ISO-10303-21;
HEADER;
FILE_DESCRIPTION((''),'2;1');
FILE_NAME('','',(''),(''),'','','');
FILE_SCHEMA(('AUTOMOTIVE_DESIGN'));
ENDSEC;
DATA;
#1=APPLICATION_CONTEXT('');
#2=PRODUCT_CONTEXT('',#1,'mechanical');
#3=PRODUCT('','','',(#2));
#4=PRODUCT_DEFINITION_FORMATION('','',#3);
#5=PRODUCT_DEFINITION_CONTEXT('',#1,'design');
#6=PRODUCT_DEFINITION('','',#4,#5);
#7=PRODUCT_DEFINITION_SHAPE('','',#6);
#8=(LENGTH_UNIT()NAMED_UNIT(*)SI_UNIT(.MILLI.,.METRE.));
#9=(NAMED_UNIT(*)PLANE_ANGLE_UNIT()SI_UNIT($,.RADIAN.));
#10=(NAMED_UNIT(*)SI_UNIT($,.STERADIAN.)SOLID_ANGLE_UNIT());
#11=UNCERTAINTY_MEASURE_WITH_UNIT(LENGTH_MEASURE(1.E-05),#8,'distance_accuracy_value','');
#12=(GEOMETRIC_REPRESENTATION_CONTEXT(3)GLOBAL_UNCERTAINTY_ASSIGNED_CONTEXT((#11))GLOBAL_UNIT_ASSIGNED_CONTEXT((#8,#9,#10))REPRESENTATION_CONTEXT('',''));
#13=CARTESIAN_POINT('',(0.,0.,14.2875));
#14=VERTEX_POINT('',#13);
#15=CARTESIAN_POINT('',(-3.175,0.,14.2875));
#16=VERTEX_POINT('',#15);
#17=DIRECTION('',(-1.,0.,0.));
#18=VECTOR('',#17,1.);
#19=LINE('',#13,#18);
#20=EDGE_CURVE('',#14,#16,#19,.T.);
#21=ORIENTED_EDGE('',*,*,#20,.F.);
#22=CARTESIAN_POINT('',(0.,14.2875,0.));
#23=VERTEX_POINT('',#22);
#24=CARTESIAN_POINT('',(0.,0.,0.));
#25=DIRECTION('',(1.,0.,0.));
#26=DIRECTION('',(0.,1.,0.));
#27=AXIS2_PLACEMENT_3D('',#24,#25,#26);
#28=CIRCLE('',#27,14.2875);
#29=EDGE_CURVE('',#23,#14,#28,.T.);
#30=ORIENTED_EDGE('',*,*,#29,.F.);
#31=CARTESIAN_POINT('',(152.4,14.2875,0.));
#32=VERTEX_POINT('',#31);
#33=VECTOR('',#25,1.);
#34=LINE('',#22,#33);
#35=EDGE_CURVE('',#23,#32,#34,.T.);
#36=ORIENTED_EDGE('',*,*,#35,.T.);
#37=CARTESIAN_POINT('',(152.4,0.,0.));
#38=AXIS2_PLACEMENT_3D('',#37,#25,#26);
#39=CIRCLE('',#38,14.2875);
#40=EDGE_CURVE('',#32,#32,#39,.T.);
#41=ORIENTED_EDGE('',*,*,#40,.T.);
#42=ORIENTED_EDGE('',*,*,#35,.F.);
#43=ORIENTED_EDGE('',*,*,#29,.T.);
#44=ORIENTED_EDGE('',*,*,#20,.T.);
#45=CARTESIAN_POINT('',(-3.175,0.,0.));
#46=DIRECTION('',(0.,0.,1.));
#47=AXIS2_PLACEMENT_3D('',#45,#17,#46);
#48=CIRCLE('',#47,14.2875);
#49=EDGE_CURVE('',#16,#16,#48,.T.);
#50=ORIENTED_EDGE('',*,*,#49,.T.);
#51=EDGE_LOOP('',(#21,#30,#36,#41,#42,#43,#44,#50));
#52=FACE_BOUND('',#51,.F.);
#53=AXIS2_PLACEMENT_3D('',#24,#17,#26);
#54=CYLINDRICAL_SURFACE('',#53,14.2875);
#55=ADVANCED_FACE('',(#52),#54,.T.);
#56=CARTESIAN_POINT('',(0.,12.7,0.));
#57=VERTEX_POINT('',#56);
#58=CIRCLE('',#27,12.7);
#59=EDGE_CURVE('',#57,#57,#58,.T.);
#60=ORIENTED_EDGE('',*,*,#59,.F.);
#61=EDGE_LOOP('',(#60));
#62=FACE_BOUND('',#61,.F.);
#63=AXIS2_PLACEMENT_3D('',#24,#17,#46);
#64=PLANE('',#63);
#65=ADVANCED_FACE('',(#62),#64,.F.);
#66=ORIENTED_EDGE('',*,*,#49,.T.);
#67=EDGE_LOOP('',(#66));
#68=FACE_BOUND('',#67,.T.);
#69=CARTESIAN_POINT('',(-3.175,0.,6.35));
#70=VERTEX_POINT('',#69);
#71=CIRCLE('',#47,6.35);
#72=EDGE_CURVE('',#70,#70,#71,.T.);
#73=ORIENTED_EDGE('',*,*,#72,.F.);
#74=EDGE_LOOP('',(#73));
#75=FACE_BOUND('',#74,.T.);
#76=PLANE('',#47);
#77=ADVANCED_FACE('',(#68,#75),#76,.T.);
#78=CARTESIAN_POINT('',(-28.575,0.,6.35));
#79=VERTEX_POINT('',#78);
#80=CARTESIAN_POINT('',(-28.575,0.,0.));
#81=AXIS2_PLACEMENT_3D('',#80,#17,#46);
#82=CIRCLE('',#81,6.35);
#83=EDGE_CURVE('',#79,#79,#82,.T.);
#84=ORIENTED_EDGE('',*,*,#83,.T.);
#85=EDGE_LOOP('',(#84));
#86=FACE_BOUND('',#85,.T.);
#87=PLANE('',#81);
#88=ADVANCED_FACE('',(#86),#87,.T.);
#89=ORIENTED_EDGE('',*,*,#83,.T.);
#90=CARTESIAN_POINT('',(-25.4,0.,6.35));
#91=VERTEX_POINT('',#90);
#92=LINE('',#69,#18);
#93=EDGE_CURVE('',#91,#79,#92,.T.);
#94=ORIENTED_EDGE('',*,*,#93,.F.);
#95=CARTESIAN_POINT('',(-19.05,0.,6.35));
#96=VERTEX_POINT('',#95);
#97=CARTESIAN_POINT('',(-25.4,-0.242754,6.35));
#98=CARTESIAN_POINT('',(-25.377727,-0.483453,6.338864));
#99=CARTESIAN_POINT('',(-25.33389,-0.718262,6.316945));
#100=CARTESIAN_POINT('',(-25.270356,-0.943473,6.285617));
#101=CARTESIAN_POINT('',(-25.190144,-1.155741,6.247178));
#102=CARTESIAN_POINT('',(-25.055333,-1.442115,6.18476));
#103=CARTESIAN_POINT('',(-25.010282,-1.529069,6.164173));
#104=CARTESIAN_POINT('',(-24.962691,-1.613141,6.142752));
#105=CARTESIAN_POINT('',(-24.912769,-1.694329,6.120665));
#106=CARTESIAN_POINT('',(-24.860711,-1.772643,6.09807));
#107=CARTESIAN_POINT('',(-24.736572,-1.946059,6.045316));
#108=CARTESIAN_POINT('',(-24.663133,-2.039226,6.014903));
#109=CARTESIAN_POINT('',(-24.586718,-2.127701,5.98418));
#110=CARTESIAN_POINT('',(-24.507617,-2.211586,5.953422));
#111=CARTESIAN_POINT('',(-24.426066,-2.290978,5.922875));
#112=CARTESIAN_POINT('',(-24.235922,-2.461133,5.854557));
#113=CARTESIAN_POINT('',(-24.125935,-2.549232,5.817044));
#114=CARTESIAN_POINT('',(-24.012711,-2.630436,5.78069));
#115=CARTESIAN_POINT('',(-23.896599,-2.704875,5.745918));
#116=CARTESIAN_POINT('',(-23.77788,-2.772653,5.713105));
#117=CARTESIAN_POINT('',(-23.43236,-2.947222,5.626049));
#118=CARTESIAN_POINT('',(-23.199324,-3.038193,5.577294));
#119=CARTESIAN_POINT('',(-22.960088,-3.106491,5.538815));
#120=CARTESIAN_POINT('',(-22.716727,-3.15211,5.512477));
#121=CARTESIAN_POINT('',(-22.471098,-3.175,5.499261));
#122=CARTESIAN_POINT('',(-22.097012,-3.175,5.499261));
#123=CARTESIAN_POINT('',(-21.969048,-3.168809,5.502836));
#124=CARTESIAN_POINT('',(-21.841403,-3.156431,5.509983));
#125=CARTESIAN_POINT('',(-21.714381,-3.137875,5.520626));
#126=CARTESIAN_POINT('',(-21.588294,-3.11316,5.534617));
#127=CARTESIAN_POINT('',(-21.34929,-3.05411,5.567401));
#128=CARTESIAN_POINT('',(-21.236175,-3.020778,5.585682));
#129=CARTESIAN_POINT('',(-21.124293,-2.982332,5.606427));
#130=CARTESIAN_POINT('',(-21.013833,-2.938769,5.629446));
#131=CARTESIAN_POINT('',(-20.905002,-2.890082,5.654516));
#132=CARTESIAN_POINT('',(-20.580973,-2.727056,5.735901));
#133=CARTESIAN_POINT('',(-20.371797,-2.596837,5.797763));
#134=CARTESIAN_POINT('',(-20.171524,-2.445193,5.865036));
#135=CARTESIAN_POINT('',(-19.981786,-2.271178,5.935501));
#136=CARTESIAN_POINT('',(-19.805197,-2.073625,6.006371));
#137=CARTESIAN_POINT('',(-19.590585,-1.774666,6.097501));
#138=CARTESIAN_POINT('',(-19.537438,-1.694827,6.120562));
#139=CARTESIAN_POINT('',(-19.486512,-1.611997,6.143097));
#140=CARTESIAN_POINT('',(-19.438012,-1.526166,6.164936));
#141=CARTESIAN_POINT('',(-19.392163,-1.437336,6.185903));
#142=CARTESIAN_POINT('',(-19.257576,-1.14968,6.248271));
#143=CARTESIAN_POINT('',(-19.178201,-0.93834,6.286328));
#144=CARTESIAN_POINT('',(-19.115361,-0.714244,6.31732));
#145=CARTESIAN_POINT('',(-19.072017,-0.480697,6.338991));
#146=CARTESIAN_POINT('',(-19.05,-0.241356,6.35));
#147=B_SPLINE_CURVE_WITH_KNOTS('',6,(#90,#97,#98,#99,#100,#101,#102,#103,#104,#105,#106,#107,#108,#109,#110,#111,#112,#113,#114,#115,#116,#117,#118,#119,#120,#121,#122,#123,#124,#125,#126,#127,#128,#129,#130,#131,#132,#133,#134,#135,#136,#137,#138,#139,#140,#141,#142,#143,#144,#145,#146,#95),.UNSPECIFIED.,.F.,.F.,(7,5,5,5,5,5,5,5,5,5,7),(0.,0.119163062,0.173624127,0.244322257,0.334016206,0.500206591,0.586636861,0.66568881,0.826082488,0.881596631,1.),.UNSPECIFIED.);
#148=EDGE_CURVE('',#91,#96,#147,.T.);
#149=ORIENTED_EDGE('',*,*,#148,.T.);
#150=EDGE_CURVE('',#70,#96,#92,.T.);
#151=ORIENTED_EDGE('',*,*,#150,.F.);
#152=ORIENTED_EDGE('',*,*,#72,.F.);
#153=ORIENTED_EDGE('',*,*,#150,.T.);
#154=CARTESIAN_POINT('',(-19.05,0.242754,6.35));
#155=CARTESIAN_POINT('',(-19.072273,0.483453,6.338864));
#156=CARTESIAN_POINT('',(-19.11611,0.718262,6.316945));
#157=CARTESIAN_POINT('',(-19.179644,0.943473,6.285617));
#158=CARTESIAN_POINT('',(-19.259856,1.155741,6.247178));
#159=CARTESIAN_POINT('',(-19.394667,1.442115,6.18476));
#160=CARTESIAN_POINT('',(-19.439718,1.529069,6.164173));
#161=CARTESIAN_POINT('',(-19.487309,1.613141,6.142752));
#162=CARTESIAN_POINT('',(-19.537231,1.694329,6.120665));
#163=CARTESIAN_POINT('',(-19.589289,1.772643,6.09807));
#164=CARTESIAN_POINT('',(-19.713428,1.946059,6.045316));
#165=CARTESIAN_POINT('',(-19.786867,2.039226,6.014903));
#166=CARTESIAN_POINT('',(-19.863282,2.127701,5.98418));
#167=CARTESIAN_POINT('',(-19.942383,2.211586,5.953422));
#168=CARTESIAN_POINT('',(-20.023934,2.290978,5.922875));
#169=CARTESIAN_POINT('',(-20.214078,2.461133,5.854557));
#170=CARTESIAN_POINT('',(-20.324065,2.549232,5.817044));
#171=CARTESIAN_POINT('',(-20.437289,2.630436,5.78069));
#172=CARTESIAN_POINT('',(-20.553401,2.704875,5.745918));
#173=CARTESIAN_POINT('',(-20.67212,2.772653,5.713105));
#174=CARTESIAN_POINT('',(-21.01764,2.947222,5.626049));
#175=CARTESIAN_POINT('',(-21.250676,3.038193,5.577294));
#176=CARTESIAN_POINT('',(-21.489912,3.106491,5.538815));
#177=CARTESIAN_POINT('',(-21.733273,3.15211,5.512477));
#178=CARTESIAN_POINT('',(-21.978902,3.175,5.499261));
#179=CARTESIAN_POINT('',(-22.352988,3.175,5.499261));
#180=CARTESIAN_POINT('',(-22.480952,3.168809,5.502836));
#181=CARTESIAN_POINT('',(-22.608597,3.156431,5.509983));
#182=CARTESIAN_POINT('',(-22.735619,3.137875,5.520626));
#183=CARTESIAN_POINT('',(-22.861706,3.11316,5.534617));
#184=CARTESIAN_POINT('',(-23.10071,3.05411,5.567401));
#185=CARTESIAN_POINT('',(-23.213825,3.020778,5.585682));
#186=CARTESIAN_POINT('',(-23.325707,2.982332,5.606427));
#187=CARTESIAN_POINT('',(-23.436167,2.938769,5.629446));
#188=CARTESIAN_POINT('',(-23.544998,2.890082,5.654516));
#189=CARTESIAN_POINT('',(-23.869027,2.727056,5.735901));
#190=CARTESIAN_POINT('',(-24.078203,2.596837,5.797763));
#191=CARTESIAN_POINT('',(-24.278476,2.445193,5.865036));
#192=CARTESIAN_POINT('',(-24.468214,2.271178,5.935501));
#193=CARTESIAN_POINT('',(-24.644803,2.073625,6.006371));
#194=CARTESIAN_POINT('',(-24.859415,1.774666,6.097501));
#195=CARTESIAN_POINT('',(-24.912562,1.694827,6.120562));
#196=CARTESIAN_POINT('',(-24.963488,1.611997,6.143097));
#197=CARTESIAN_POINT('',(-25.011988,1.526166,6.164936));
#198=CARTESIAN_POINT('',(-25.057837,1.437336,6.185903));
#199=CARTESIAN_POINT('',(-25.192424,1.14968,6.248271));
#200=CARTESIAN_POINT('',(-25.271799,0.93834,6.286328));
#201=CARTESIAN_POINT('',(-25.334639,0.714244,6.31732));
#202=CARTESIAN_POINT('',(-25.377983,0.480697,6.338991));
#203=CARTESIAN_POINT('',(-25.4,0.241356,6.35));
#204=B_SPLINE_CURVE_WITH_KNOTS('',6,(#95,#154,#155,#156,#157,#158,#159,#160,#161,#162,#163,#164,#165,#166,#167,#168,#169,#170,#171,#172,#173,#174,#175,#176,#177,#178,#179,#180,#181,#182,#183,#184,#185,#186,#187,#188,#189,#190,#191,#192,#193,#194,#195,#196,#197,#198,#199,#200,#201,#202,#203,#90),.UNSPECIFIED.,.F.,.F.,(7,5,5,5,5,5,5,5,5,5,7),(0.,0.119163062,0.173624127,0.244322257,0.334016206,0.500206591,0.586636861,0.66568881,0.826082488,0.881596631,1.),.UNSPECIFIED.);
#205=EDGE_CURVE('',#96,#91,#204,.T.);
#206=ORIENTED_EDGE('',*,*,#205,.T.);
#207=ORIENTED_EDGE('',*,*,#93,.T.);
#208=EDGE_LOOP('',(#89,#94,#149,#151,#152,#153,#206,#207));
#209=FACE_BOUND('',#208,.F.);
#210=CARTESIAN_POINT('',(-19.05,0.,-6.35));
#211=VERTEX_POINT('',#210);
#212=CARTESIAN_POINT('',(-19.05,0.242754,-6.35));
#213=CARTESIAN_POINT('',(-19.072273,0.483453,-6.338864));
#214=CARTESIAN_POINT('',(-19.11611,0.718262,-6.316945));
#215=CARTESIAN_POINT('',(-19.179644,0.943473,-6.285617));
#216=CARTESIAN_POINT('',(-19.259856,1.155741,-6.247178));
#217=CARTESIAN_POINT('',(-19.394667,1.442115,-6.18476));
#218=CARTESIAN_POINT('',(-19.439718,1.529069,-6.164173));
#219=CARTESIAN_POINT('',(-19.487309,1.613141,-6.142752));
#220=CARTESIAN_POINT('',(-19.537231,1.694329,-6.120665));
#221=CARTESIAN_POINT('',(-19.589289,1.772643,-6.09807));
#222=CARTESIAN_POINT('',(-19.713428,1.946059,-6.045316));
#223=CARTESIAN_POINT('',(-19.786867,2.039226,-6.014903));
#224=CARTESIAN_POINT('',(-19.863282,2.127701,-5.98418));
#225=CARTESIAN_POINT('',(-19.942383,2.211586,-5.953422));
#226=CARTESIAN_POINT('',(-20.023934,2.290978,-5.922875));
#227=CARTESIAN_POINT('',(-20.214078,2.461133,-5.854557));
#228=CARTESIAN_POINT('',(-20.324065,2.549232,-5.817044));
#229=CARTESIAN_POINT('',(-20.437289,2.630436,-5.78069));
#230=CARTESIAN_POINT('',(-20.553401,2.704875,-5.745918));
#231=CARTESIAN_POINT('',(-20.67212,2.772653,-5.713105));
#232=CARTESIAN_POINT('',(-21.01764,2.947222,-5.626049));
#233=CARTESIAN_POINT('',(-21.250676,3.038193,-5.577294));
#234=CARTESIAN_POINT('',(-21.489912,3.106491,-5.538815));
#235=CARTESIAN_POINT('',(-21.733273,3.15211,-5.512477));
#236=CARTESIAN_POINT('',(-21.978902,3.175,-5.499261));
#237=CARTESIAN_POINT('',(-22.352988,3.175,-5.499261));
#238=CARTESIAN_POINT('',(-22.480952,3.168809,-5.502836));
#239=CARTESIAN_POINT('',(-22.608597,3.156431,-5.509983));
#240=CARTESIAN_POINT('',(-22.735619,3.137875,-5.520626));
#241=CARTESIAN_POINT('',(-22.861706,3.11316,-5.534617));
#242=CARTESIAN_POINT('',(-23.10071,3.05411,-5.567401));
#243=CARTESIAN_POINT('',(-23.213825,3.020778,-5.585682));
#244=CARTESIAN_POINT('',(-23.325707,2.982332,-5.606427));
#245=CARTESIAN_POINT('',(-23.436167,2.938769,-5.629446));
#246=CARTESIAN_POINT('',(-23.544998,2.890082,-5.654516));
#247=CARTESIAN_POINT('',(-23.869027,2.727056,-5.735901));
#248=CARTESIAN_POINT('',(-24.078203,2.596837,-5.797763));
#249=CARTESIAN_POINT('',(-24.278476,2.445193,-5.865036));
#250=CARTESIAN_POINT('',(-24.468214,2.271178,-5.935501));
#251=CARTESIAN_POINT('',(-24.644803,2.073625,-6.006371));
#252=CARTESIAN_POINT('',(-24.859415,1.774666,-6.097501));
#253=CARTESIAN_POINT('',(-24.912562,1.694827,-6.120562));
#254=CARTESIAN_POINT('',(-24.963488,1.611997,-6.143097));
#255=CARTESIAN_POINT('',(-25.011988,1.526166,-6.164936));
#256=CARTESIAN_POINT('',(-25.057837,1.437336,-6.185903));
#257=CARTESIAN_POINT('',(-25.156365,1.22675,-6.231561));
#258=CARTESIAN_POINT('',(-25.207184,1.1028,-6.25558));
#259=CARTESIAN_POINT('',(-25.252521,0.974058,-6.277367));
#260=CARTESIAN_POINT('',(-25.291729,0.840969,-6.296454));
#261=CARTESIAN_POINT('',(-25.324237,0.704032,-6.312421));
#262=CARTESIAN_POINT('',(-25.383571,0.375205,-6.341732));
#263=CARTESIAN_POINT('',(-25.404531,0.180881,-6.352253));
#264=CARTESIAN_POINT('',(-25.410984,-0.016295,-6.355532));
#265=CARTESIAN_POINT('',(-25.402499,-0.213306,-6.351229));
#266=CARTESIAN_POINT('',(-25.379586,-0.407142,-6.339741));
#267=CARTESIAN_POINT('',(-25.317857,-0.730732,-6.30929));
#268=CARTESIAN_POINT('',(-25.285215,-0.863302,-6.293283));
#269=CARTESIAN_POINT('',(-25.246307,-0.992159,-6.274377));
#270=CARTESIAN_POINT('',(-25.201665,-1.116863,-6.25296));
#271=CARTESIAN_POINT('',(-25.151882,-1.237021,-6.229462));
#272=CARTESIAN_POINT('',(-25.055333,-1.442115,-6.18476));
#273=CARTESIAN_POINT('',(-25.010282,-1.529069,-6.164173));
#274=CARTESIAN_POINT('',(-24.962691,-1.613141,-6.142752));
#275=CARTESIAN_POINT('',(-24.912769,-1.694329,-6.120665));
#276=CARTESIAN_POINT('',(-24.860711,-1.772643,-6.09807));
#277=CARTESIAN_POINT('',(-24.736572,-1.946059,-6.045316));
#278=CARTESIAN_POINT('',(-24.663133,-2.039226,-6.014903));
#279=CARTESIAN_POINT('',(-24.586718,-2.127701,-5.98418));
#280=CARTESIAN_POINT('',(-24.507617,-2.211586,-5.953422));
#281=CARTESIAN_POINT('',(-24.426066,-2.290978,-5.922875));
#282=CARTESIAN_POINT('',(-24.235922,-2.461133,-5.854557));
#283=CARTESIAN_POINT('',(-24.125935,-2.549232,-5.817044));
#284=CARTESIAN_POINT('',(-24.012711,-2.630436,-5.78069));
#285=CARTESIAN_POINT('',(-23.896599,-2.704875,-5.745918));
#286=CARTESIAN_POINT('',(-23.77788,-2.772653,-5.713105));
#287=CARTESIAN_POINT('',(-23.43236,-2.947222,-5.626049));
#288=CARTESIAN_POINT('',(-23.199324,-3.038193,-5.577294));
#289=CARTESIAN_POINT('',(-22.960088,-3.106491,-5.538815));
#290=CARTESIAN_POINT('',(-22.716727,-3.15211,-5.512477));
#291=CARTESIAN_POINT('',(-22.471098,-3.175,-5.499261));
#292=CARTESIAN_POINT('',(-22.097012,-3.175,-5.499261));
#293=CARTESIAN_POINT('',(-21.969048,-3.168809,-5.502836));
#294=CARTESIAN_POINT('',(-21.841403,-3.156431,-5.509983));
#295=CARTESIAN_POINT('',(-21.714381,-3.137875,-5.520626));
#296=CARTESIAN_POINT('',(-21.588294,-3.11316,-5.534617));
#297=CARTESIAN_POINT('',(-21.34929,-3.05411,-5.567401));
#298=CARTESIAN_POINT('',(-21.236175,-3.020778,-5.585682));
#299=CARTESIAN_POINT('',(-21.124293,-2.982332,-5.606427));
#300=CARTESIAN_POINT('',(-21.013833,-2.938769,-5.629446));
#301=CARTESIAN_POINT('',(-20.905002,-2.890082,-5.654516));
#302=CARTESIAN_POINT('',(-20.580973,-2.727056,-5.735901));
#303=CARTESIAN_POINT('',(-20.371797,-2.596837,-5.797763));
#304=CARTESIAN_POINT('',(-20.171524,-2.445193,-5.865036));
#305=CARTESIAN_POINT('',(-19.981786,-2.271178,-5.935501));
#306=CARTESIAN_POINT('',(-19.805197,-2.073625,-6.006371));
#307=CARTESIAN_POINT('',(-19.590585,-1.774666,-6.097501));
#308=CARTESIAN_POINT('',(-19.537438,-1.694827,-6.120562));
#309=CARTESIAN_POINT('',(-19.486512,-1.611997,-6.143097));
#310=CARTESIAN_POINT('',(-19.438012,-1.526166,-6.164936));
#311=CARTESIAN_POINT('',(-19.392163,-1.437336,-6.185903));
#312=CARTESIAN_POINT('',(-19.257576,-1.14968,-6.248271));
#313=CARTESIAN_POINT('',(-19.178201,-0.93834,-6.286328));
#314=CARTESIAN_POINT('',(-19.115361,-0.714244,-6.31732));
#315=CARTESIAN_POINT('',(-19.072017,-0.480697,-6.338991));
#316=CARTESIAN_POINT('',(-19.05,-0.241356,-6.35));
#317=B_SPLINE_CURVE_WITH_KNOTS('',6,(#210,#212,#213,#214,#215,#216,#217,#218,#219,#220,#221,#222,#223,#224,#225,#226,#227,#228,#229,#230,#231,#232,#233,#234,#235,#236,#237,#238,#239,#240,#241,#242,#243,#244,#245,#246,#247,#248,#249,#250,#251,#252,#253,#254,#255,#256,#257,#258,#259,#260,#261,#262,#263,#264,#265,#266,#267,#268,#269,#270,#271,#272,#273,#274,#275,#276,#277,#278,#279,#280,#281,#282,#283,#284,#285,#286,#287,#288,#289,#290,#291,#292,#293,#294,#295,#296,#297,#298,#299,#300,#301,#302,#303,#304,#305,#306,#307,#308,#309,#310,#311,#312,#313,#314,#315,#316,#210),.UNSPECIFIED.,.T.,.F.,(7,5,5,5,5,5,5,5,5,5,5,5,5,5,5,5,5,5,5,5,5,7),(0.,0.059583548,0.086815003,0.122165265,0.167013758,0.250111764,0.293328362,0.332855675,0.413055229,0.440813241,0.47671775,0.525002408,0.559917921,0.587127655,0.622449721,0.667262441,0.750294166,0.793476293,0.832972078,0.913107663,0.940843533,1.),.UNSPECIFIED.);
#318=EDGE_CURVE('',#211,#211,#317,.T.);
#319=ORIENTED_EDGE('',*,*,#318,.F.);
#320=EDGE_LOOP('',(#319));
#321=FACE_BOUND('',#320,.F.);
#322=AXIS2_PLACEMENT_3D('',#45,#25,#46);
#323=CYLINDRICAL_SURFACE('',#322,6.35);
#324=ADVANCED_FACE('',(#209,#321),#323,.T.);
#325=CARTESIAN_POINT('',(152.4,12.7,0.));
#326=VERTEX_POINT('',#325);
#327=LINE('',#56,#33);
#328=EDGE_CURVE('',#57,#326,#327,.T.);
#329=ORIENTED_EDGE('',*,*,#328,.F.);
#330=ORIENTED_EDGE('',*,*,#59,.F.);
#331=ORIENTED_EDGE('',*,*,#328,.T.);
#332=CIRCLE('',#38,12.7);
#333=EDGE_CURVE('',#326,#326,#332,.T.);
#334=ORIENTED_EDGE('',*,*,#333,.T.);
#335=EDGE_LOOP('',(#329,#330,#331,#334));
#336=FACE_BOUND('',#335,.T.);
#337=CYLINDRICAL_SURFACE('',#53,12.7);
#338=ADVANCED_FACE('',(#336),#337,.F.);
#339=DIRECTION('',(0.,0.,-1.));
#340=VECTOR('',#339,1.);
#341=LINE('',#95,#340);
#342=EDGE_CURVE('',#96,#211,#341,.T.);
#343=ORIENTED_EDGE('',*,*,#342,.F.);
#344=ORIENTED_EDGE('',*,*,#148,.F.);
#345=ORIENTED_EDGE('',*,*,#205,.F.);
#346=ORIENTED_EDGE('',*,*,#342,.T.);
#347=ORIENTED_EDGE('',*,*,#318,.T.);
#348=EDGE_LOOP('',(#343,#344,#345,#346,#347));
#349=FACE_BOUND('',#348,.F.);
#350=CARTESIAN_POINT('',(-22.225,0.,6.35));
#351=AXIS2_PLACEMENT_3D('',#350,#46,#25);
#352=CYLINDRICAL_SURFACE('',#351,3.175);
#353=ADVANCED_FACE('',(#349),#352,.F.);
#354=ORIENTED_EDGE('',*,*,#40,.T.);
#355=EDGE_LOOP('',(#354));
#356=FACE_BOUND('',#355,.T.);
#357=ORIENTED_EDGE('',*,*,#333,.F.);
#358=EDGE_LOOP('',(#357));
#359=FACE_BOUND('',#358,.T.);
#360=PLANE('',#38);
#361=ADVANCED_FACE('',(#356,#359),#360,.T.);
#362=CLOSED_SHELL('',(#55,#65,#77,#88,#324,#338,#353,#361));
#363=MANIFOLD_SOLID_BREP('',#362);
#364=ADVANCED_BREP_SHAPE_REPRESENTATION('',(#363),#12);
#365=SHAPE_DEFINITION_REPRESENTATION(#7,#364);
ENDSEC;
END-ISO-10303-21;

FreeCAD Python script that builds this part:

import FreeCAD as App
import Part
import Sketcher

V = App.Vector
Q = App.Units.Quantity

doc = App.newDocument("Part")
params = doc.addObject("Spreadsheet::Sheet", "Params")
for row, (alias, value) in enumerate([
    ("sketch1_diameter", "1 in"),
    ("sketch1_diameter2", "1.125 in"),
    ("pad1_length", "6 in"),
    ("sketch2_diameter", "1.125 in"),
    ("pad2_length", "0.125 in"),
    ("sketch3_diameter", "0.5 in"),
    ("pad3_length", "1 in"),
    ("sketch4_diameter", "0.25 in"),
    ("pocket1_length", "1 in"),
], start=1):
    params.set(f"A{row}", alias)
    params.set(f"B{row}", "=" + value)
    params.setAlias(f"B{row}", alias)

body = doc.addObject("PartDesign::Body", "Body")

sketch1 = body.newObject("Sketcher::SketchObject", "Sketch")
sketch1.AttachmentSupport = (doc.getObject("YZ_Plane"), [""])
sketch1.MapMode = "FlatFace"
sketch1.addGeometry(Part.Circle(V(0, 0, 0), V(0, 0, 1), 14.2875), False)
sketch1.addGeometry(Part.Circle(V(0, 0, 0), V(0, 0, 1), 12.7), False)
sketch1.addConstraint(Sketcher.Constraint("Coincident", 0, 3, -1, 1))
sketch1.addConstraint(Sketcher.Constraint("Coincident", 1, 3, -1, 1))
sketch1.addConstraint(Sketcher.Constraint("Diameter", 1, Q("1 in")))
sketch1.addConstraint(Sketcher.Constraint("Diameter", 0, Q("1.125 in")))
sketch1.setExpression("Constraints[2]", "Params.sketch1_diameter")
sketch1.setExpression("Constraints[3]", "Params.sketch1_diameter2")
pad1 = body.newObject("PartDesign::Pad", "Pad")
pad1.Profile = sketch1
pad1.setExpression("Length", "Params.pad1_length")

sketch2 = body.newObject("Sketcher::SketchObject", "Sketch001")
sketch2.AttachmentSupport = (doc.getObject("YZ_Plane"), [""])
sketch2.MapMode = "FlatFace"
sketch2.addGeometry(Part.Circle(V(0, 0, 0), V(0, 0, 1), 14.2875), False)
sketch2.addConstraint(Sketcher.Constraint("Coincident", 0, 3, -1, 1))
sketch2.addConstraint(Sketcher.Constraint("Diameter", 0, Q("1.125 in")))
sketch2.setExpression("Constraints[1]", "Params.sketch2_diameter")
pad2 = body.newObject("PartDesign::Pad", "Pad001")
pad2.Profile = sketch2
pad2.setExpression("Length", "Params.pad2_length")
pad2.Reversed = True

sketch3 = body.newObject("Sketcher::SketchObject", "Sketch002")
sketch3.AttachmentSupport = (doc.getObject("YZ_Plane"), [""])
sketch3.MapMode = "FlatFace"
sketch3.AttachmentOffset = App.Placement(V(0, 0, -0.125 * 25.4), App.Rotation())
sketch3.addGeometry(Part.Circle(V(0, 0, 0), V(0, 0, 1), 6.35), False)
sketch3.addConstraint(Sketcher.Constraint("Coincident", 0, 3, -1, 1))
sketch3.addConstraint(Sketcher.Constraint("Diameter", 0, Q("0.5 in")))
sketch3.setExpression("Constraints[1]", "Params.sketch3_diameter")
pad3 = body.newObject("PartDesign::Pad", "Pad002")
pad3.Profile = sketch3
pad3.setExpression("Length", "Params.pad3_length")
pad3.Reversed = True

sketch4 = body.newObject("Sketcher::SketchObject", "Sketch003")
sketch4.AttachmentSupport = (doc.getObject("XY_Plane"), [""])
sketch4.MapMode = "FlatFace"
sketch4.AttachmentOffset = App.Placement(V(0, 0, 0.25 * 25.4), App.Rotation())
sketch4.addGeometry(Part.Circle(V(-22.225, 0, 0), V(0, 0, 1), 3.175), False)
sketch4.addConstraint(Sketcher.Constraint("PointOnObject", 0, 3, -1))
sketch4.addConstraint(Sketcher.Constraint("Diameter", 0, Q("0.25 in")))
sketch4.addConstraint(Sketcher.Constraint("DistanceX", 0, 3, -1, 1, Q("0.875 in")))
sketch4.setExpression("Constraints[1]", "Params.sketch4_diameter")
pocket1 = body.newObject("PartDesign::Pocket", "Pocket")
pocket1.Profile = sketch4
pocket1.setExpression("Length", "Params.pocket1_length")

doc.recompute()
